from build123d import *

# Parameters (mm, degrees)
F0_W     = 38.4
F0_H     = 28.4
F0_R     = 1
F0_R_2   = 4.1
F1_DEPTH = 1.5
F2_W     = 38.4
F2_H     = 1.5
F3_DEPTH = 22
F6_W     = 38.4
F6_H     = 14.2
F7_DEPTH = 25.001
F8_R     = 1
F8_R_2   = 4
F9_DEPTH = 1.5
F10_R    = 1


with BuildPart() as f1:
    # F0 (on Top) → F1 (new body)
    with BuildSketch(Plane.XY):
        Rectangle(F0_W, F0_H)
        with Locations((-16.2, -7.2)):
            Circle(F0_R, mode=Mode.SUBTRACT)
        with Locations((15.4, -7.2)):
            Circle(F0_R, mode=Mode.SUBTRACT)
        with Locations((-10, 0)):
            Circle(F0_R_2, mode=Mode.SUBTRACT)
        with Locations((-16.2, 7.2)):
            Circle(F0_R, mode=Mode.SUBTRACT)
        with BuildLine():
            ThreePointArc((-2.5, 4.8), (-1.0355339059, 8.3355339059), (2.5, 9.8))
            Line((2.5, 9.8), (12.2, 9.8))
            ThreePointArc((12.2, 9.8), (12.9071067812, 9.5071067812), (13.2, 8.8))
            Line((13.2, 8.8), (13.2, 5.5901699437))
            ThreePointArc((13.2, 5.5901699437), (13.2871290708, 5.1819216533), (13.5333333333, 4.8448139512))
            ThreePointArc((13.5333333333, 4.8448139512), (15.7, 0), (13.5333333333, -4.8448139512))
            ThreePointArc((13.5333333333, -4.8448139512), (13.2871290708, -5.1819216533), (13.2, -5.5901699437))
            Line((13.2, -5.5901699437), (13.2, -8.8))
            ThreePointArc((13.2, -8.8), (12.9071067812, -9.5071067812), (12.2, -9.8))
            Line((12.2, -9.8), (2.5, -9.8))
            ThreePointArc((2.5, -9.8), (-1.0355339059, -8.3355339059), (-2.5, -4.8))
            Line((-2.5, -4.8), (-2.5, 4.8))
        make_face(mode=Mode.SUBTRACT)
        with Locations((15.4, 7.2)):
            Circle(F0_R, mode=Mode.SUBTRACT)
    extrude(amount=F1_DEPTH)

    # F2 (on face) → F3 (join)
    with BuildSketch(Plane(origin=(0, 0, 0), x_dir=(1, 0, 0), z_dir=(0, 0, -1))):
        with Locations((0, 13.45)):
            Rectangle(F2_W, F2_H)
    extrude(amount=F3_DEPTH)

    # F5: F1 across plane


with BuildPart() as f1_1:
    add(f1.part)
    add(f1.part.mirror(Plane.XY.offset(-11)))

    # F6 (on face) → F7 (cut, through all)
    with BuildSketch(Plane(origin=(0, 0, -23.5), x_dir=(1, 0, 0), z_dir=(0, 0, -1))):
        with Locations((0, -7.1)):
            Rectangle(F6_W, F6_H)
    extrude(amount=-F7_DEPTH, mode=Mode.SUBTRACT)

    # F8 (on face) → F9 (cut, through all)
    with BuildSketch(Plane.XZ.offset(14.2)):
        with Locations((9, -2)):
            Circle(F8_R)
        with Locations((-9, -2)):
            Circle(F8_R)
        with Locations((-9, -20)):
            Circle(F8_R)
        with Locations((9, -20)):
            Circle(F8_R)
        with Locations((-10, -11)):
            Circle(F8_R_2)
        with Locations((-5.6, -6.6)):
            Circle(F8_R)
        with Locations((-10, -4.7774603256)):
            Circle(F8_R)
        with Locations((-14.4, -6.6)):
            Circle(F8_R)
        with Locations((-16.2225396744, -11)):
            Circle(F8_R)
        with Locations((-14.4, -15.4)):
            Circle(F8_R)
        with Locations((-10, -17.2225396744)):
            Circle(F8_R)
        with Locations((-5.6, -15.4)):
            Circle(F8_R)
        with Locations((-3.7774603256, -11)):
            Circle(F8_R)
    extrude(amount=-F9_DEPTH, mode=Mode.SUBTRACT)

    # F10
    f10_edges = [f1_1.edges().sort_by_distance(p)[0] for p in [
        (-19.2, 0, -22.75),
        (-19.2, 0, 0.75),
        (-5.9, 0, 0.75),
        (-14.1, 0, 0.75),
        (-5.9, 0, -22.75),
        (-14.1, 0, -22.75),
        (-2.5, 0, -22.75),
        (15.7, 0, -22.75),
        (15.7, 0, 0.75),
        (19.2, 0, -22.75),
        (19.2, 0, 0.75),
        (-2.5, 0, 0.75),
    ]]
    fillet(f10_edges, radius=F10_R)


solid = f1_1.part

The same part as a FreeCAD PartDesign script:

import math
import FreeCAD as App
import Part
import Sketcher

V = App.Vector
Q = App.Units.Quantity


def edges_at(feature, points):
    """Names of the edges that pass closest to the given points."""
    edges = feature.Shape.Edges
    near = lambda p: min(range(len(edges)), key=lambda i: edges[i].distToShape(Part.Vertex(*p))[0])
    return sorted({f"Edge{near(p) + 1}" for p in points})


def add_polygon(sketch, points):
    """Adds a closed chain of lines whose ends are joined by coincident constraints."""
    first, n = sketch.GeometryCount, len(points)
    for a, b in zip(points, points[1:] + points[:1]):
        sketch.addGeometry(Part.LineSegment(App.Vector(*a, 0), App.Vector(*b, 0)), False)
    for i in range(n):
        sketch.addConstraint(Sketcher.Constraint("Coincident", first + i, 2, first + (i + 1) % n, 1))

doc = App.newDocument("Part")
body = doc.addObject("PartDesign::Body", "Body")

# Sketch on XY plane
sketch1 = doc.addObject("Sketcher::SketchObject", "Sketch")
body.addObject(sketch1)
sketch1.AttachmentSupport = (doc.XY_Plane, [""])
sketch1.MapMode = "FlatFace"
add_polygon(sketch1, [(-19.2, 14.2), (-19.2, -14.2), (19.2, -14.2), (19.2, 14.2)])  # lines 0-3
sketch1.addGeometry(Part.Circle(V(-16.2, -7.2, 0), V(0, 0, 1), 1), False)  # 4
sketch1.addGeometry(Part.Circle(V(15.4, -7.2, 0), V(0, 0, 1), 1), False)  # 5
sketch1.addGeometry(Part.Circle(V(-10, 0, 0), V(0, 0, 1), 4.1), False)  # 6
sketch1.addGeometry(Part.Circle(V(-16.2, 7.2, 0), V(0, 0, 1), 1), False)  # 7
sketch1.addGeometry(Part.LineSegment(V(-2.5, -4.8, 0), V(-2.5, 4.8, 0)), False)  # 8
sketch1.addGeometry(Part.ArcOfCircle(Part.Circle(V(2.5, 4.8, 0), V(0, 0, 1), 5), math.radians(90), math.radians(180)), False)  # 9
sketch1.addGeometry(Part.LineSegment(V(2.5, 9.8, 0), V(12.2, 9.8, 0)), False)  # 10
sketch1.addGeometry(Part.ArcOfCircle(Part.Circle(V(12.2, 8.8, 0), V(0, 0, 1), 1), math.radians(0), math.radians(90)), False)  # 11
sketch1.addGeometry(Part.LineSegment(V(13.2, 8.8, 0), V(13.2, 5.6, 0)), False)  # 12
sketch1.addGeometry(Part.ArcOfCircle(Part.Circle(V(14.2, 5.6, 0), V(0, 0, 1), 1), math.radians(180), math.radians(228)), False)  # 13
sketch1.addGeometry(Part.ArcOfCircle(Part.Circle(V(9.2, 0, 0), V(0, 0, 1), 6.5), math.radians(-48), math.radians(48)), False)  # 14
sketch1.addGeometry(Part.ArcOfCircle(Part.Circle(V(14.2, -5.6, 0), V(0, 0, 1), 1), math.radians(132), math.radians(180)), False)  # 15
sketch1.addGeometry(Part.LineSegment(V(13.2, -5.6, 0), V(13.2, -8.8, 0)), False)  # 16
sketch1.addGeometry(Part.ArcOfCircle(Part.Circle(V(12.2, -8.8, 0), V(0, 0, 1), 1), math.radians(-90), math.radians(0)), False)  # 17
sketch1.addGeometry(Part.LineSegment(V(12.2, -9.8, 0), V(2.5, -9.8, 0)), False)  # 18
sketch1.addGeometry(Part.ArcOfCircle(Part.Circle(V(2.5, -4.8, 0), V(0, 0, 1), 5), math.radians(180), math.radians(270)), False)  # 19
sketch1.addGeometry(Part.Circle(V(15.4, 7.2, 0), V(0, 0, 1), 1), False)  # 20
sketch1.addConstraint([
    Sketcher.Constraint("Tangent", 8, 2, 9, 2),
    Sketcher.Constraint("Tangent", 9, 1, 10, 1),
    Sketcher.Constraint("Tangent", 10, 2, 11, 2),
    Sketcher.Constraint("Tangent", 11, 1, 12, 1),
    Sketcher.Constraint("Tangent", 12, 2, 13, 1),
    Sketcher.Constraint("Tangent", 13, 2, 14, 2),
    Sketcher.Constraint("Tangent", 14, 1, 15, 1),
    Sketcher.Constraint("Tangent", 15, 2, 16, 1),
    Sketcher.Constraint("Tangent", 16, 2, 17, 2),
    Sketcher.Constraint("Tangent", 17, 1, 18, 1),
    Sketcher.Constraint("Tangent", 18, 2, 19, 2),
    Sketcher.Constraint("Tangent", 19, 1, 8, 1),
    Sketcher.Constraint("Vertical", 0),
    Sketcher.Constraint("Horizontal", 1),
    Sketcher.Constraint("Vertical", 2),
    Sketcher.Constraint("Horizontal", 3),
    Sketcher.Constraint("Vertical", 8),
    Sketcher.Constraint("Horizontal", 10),
    Sketcher.Constraint("Vertical", 12),
    Sketcher.Constraint("Vertical", 16),
    Sketcher.Constraint("Horizontal", 18),
    Sketcher.Constraint("Equal", 4, 5),
    Sketcher.Constraint("Equal", 5, 7),
    Sketcher.Constraint("Equal", 7, 11),
    Sketcher.Constraint("Equal", 11, 13),
    Sketcher.Constraint("Equal", 13, 15),
    Sketcher.Constraint("Equal", 15, 17),
    Sketcher.Constraint("Equal", 9, 19),
    Sketcher.Constraint("Equal", 17, 20),
    Sketcher.Constraint("Symmetric", 0, 2, 2, 2, -1, 1),
    Sketcher.Constraint("Symmetric", 4, 3, 7, 3, -1),
    Sketcher.Constraint("Symmetric", 13, 3, 15, 3, -1),
    Sketcher.Constraint("Symmetric", 5, 3, 20, 3, -1),
    Sketcher.Constraint("PointOnObject", 6, 3, -1),
    Sketcher.Constraint("Horizontal", 4, 3, 5, 3),
    Sketcher.Constraint("Equal", 12, 16),
    Sketcher.Constraint("Diameter", 4, Q("2 mm")),
    Sketcher.Constraint("Radius", 9, Q("5 mm")),
    Sketcher.Constraint("Diameter", 6, Q("8.2 mm")),
    Sketcher.Constraint("Radius", 14, Q("6.5 mm")),
    Sketcher.Constraint("DistanceX", 1, 1, 1, 2, Q("38.4 mm")),
    Sketcher.Constraint("DistanceX", 10, 1, 10, 2, Q("9.7 mm")),
    Sketcher.Constraint("DistanceY", 0, 2, 0, 1, Q("28.4 mm")),
    Sketcher.Constraint("DistanceY", 8, 1, 8, 2, Q("9.6 mm")),
    Sketcher.Constraint("DistanceX", 6, 3, -1, 1, Q("10 mm")),
    Sketcher.Constraint("DistanceY", 5, 3, 9, 3, Q("12 mm")),
    Sketcher.Constraint("DistanceX", 14, 3, 13, 3, Q("5 mm")),
    Sketcher.Constraint("DistanceX", 0, 2, 4, 3, Q("3 mm")),
    Sketcher.Constraint("DistanceX", 17, 3, 1, 2, Q("7 mm")),
    Sketcher.Constraint("DistanceX", -1, 1, 5, 3, Q("15.4 mm")),
])
pad1 = doc.addObject("PartDesign::Pad", "Pad")
body.addObject(pad1)
pad1.Profile = sketch1
pad1.Length = 1.5

# Sketch on XY plane
sketch2 = doc.addObject("Sketcher::SketchObject", "Sketch001")
body.addObject(sketch2)
sketch2.AttachmentSupport = (doc.XY_Plane, [""])
sketch2.MapMode = "FlatFace"
add_polygon(sketch2, [(-19.2, -14.2), (-19.2, -12.7), (19.2, -12.7), (19.2, -14.2)])  # lines 0-3
sketch2.addConstraint([
    Sketcher.Constraint("Vertical", 0),
    Sketcher.Constraint("Horizontal", 1),
    Sketcher.Constraint("Vertical", 2),
    Sketcher.Constraint("Horizontal", 3),
    Sketcher.Constraint("DistanceX", 1, 1, 1, 2, Q("38.4 mm")),
    Sketcher.Constraint("DistanceY", 0, 1, 0, 2, Q("1.5 mm")),
    Sketcher.Constraint("DistanceX", 0, 2, -1, 1, Q("19.2 mm")),
    Sketcher.Constraint("DistanceY", 0, 2, -1, 1, Q("12.7 mm")),
])
pad2 = doc.addObject("PartDesign::Pad", "Pad001")
body.addObject(pad2)
pad2.Profile = sketch2
pad2.Length = 22
pad2.Reversed = True
body2 = doc.addObject("PartDesign::Body", "Body001")
doc.recompute()

body2.BaseFeature = body
doc.recompute()

mirroring = doc.addObject("Part::Mirroring", "Mirroring")
mirroring.Source = body
mirroring.Base = V(0, 0, -11)
mirroring.Normal = V(0, 0, 1)
body3 = doc.addObject("PartDesign::Body", "Body002")
body3.BaseFeature = mirroring
boolean = doc.addObject("PartDesign::Boolean", "Boolean")
body2.addObject(boolean)
boolean.Type = "Fuse"
boolean.addObjects([body3])
doc.recompute()

# Sketch on XY plane
sketch3 = doc.addObject("Sketcher::SketchObject", "Sketch002")
body2.addObject(sketch3)
sketch3.AttachmentSupport = (doc.getObject("XY_Plane001"), [""])
sketch3.MapMode = "FlatFace"
sketch3.AttachmentOffset = App.Placement(V(0, 0, -23.5), App.Rotation())
add_polygon(sketch3, [(-19, 0), (-19, 14), (19, 14), (19, 0)])  # lines 0-3
sketch3.addConstraint([
    Sketcher.Constraint("Vertical", 0),
    Sketcher.Constraint("Horizontal", 1),
    Sketcher.Constraint("Vertical", 2),
    Sketcher.Constraint("Horizontal", 3),
    Sketcher.Constraint("Symmetric", 2, 2, 3, 2, -1, 1),
    Sketcher.Constraint("DistanceX", 1, 1, 1, 2, Q("38.4 mm")),
    Sketcher.Constraint("DistanceY", 0, 1, 0, 2, Q("14.2 mm")),
])
pocket1 = doc.addObject("PartDesign::Pocket", "Pocket")
body2.addObject(pocket1)
pocket1.Profile = sketch3
pocket1.Type = "ThroughAll"
pocket1.Reversed = True

# Sketch on XZ plane
sketch4 = doc.addObject("Sketcher::SketchObject", "Sketch003")
body2.addObject(sketch4)
sketch4.AttachmentSupport = (doc.getObject("XZ_Plane001"), [""])
sketch4.MapMode = "FlatFace"
sketch4.AttachmentOffset = App.Placement(V(0, 0, 14.2), App.Rotation())
sketch4.addGeometry([
    Part.Circle(V(9, -2, 0), V(0, 0, 1), 1),  # 0
    Part.Circle(V(-9, -2, 0), V(0, 0, 1), 1),  # 1
    Part.Circle(V(-9, -20, 0), V(0, 0, 1), 1),  # 2
    Part.Circle(V(9, -20, 0), V(0, 0, 1), 1),  # 3
    Part.Circle(V(-10, -11, 0), V(0, 0, 1), 4),  # 4
    Part.Circle(V(-5.6, -6.6, 0), V(0, 0, 1), 1),  # 5
    Part.Circle(V(-10, -4.8, 0), V(0, 0, 1), 1),  # 6
    Part.Circle(V(-14.4, -6.6, 0), V(0, 0, 1), 1),  # 7
    Part.Circle(V(-16.2, -11, 0), V(0, 0, 1), 1),  # 8
    Part.Circle(V(-14.4, -15.4, 0), V(0, 0, 1), 1),  # 9
    Part.Circle(V(-10, -17.2, 0), V(0, 0, 1), 1),  # 10
    Part.Circle(V(-5.6, -15.4, 0), V(0, 0, 1), 1),  # 11
    Part.Circle(V(-3.8, -11, 0), V(0, 0, 1), 1),  # 12
], False)
sketch4.addConstraint([
    Sketcher.Constraint("Equal", 0, 1),
    Sketcher.Constraint("Equal", 1, 2),
    Sketcher.Constraint("Equal", 2, 3),
    Sketcher.Constraint("Equal", 3, 5),
    Sketcher.Constraint("Equal", 5, 6),
    Sketcher.Constraint("Equal", 6, 7),
    Sketcher.Constraint("Equal", 7, 8),
    Sketcher.Constraint("Equal", 8, 9),
    Sketcher.Constraint("Equal", 9, 10),
    Sketcher.Constraint("Equal", 10, 11),
    Sketcher.Constraint("Equal", 11, 12),
    Sketcher.Constraint("Symmetric", 0, 3, 1, 3, -2),
    Sketcher.Constraint("Symmetric", 2, 3, 3, 3, -2),
    Sketcher.Constraint("Horizontal", 5, 3, 7, 3),
    Sketcher.Constraint("Horizontal", 4, 3, 8, 3),
    Sketcher.Constraint("Horizontal", 9, 3, 11, 3),
    Sketcher.Constraint("Horizontal", 8, 3, 12, 3),
    Sketcher.Constraint("Vertical", 1, 3, 2, 3),
    Sketcher.Constraint("Vertical", 4, 3, 6, 3),
    Sketcher.Constraint("Vertical", 7, 3, 9, 3),
    Sketcher.Constraint("Vertical", 6, 3, 10, 3),
    Sketcher.Constraint("Vertical", 5, 3, 11, 3),
    Sketcher.Constraint("Diameter", 0, Q("2 mm")),
    Sketcher.Constraint("Diameter", 4, Q("8 mm")),
    Sketcher.Constraint("DistanceX", -1, 1, 0, 3, Q("9 mm")),
    Sketcher.Constraint("DistanceY", 0, 3, -1, 1, Q("2 mm")),
    Sketcher.Constraint("DistanceY", 2, 3, -1, 1, Q("20 mm")),
    Sketcher.Constraint("DistanceX", 4, 3, -1, 1, Q("10 mm")),
    Sketcher.Constraint("DistanceY", 4, 3, -1, 1, Q("11 mm")),
    Sketcher.Constraint("DistanceX", 5, 3, -1, 1, Q("5.6 mm")),
    Sketcher.Constraint("DistanceY", 5, 3, -1, 1, Q("6.6 mm")),
    Sketcher.Constraint("DistanceX", 7, 3, -1, 1, Q("14.4 mm")),
    Sketcher.Constraint("DistanceY", 9, 3, -1, 1, Q("15.4 mm")),
    Sketcher.Constraint("DistanceY", 6, 3, -1, 1, Q("4.77746 mm")),
    Sketcher.Constraint("DistanceX", 8, 3, -1, 1, Q("16.22254 mm")),
    Sketcher.Constraint("DistanceY", 10, 3, -1, 1, Q("17.22254 mm")),
    Sketcher.Constraint("DistanceX", 12, 3, -1, 1, Q("3.77746 mm")),
])
pocket2 = doc.addObject("PartDesign::Pocket", "Pocket001")
body2.addObject(pocket2)
pocket2.Profile = sketch4
pocket2.Type = "ThroughAll"
doc.recompute()

fillet = doc.addObject("PartDesign::Fillet", "Fillet")
body2.addObject(fillet)
fillet.Base = (pocket2, edges_at(pocket2, [
    (-19.2, 0, -22.75),
    (-19.2, 0, 0.75),
    (-5.9, 0, 0.75),
    (-14.1, 0, 0.75),
    (-5.9, 0, -22.75),
    (-14.1, 0, -22.75),
    (-2.5, 0, -22.75),
    (15.7, 0, -22.75),
    (15.7, 0, 0.75),
    (19.2, 0, -22.75),
    (19.2, 0, 0.75),
    (-2.5, 0, 0.75),
]))
fillet.Radius = 1
mirroring.Visibility = False

doc.recompute()
